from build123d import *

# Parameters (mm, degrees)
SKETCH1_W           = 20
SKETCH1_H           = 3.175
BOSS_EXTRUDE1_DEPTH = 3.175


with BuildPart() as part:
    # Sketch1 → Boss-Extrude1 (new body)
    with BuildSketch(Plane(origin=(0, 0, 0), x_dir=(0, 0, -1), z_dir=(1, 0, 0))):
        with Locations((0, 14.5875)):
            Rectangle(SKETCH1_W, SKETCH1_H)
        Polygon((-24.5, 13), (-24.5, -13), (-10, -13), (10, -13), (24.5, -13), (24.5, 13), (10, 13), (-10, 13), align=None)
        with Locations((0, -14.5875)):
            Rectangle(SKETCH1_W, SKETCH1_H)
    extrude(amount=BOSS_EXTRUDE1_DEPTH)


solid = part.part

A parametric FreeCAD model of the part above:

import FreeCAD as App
import Part
import Sketcher
from FreeCAD import Vector


def add_polygon(sketch, points):
    """Adds a closed chain of lines whose ends are joined by coincident constraints."""
    first, n = sketch.GeometryCount, len(points)
    for a, b in zip(points, points[1:] + points[:1]):
        sketch.addGeometry(Part.LineSegment(App.Vector(*a, 0), App.Vector(*b, 0)), False)
    for i in range(n):
        sketch.addConstraint(Sketcher.Constraint("Coincident", first + i, 2, first + (i + 1) % n, 1))

doc = App.newDocument("Part")
body = doc.addObject("PartDesign::Body", "Body")

# Sketch on YZ plane
sketch1 = body.newObject("Sketcher::SketchObject", "Sketch")
sketch1.AttachmentSupport = (doc.getObject("YZ_Plane"), [""])
sketch1.MapMode = "FlatFace"
add_polygon(sketch1, [(16.2, 10), (13, 10), (13, 24.5), (-13, 24.5), (-13, 10), (-16.2, 10), (-16.2, -10), (-13, -10), (-13, -24.5), (13, -24.5), (13, -10), (16.2, -10)])  # lines 0-11
sketch1.addConstraint([
    Sketcher.Constraint("Horizontal", 0),
    Sketcher.Constraint("Vertical", 1),
    Sketcher.Constraint("Horizontal", 2),
    Sketcher.Constraint("Vertical", 3),
    Sketcher.Constraint("Horizontal", 4),
    Sketcher.Constraint("Vertical", 5),
    Sketcher.Constraint("Horizontal", 6),
    Sketcher.Constraint("Vertical", 7),
    Sketcher.Constraint("Horizontal", 8),
    Sketcher.Constraint("Vertical", 9),
    Sketcher.Constraint("Horizontal", 10),
    Sketcher.Constraint("Vertical", 11),
    Sketcher.Constraint("Symmetric", 0, 2, 6, 2, -1, 1),
    Sketcher.Constraint("Symmetric", 2, 2, 8, 2, -1, 1),
    Sketcher.Constraint("Symmetric", 4, 2, 10, 2, -1, 1),
    Sketcher.Constraint("Symmetric", 0, 2, 3, 2, -2),
    Sketcher.Constraint("DistanceX", 2, 2, 2, 1, 26.0),
    Sketcher.Constraint("DistanceY", 5, 2, 5, 1, 20.0),
    Sketcher.Constraint("DistanceY", 1, 1, 1, 2, 14.5),
    Sketcher.Constraint("DistanceX", 0, 2, 0, 1, 3.175),
])
pad1 = body.newObject("PartDesign::Pad", "Pad")
pad1.Profile = sketch1
pad1.Length = 3.175

doc.recompute()
